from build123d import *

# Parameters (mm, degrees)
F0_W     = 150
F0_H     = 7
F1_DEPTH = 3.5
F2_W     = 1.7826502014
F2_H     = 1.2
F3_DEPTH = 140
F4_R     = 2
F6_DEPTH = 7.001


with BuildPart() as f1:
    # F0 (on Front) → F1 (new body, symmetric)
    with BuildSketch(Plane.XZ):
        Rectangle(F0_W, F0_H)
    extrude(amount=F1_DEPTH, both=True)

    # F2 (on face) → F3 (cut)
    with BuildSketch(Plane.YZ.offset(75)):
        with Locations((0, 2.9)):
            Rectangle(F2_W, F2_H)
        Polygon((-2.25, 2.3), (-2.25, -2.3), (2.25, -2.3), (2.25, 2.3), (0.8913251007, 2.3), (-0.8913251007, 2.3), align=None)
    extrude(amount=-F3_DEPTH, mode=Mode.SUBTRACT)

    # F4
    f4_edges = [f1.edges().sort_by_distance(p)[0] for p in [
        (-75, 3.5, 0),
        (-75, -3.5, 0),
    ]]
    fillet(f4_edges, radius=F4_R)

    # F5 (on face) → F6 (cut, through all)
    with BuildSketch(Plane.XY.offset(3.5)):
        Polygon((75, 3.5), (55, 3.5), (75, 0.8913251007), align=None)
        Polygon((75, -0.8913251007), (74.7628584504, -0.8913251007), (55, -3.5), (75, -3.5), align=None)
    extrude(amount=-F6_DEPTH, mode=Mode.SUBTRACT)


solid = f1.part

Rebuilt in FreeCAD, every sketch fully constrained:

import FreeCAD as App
import Part
import Sketcher

V = App.Vector


def edges_at(feature, points):
    """Names of the edges that pass closest to the given points."""
    edges = feature.Shape.Edges
    near = lambda p: min(range(len(edges)), key=lambda i: edges[i].distToShape(Part.Vertex(*p))[0])
    return sorted({f"Edge{near(p) + 1}" for p in points})


def add_polygon(sketch, points):
    """Adds a closed chain of lines whose ends are joined by coincident constraints."""
    first, n = sketch.GeometryCount, len(points)
    for a, b in zip(points, points[1:] + points[:1]):
        sketch.addGeometry(Part.LineSegment(App.Vector(*a, 0), App.Vector(*b, 0)), False)
    for i in range(n):
        sketch.addConstraint(Sketcher.Constraint("Coincident", first + i, 2, first + (i + 1) % n, 1))

doc = App.newDocument("Part")
body = doc.addObject("PartDesign::Body", "Body")

sketch1 = body.newObject("Sketcher::SketchObject", "Sketch")
sketch1.AttachmentSupport = (doc.getObject("XZ_Plane"), [""])
sketch1.MapMode = "FlatFace"
add_polygon(sketch1, [(-75, 3.5), (-75, -3.5), (75, -3.5), (75, 3.5)])
sketch1.addConstraint(Sketcher.Constraint("Vertical", 0))
sketch1.addConstraint(Sketcher.Constraint("Horizontal", 1))
sketch1.addConstraint(Sketcher.Constraint("Vertical", 2))
sketch1.addConstraint(Sketcher.Constraint("Horizontal", 3))
sketch1.addConstraint(Sketcher.Constraint("Symmetric", 0, 2, 2, 2, -1, 1))
sketch1.addConstraint(Sketcher.Constraint("DistanceX", 1, 1, 1, 2, 150.0))
sketch1.addConstraint(Sketcher.Constraint("DistanceY", 0, 2, 0, 1, 7.0))
pad1 = body.newObject("PartDesign::Pad", "Pad")
pad1.Profile = sketch1
pad1.Length = 7
pad1.Midplane = True

sketch2 = body.newObject("Sketcher::SketchObject", "Sketch001")
sketch2.AttachmentSupport = (doc.getObject("YZ_Plane"), [""])
sketch2.MapMode = "FlatFace"
sketch2.AttachmentOffset = App.Placement(V(0, 0, 75), App.Rotation())
add_polygon(sketch2, [(-0.891325, 3.5), (-0.891325, 2.3), (-2.25, 2.3), (-2.25, -2.3), (2.25, -2.3), (2.25, 2.3), (0.891325, 2.3), (0.891325, 3.5)])
sketch2.addConstraint(Sketcher.Constraint("Vertical", 0))
sketch2.addConstraint(Sketcher.Constraint("Horizontal", 1))
sketch2.addConstraint(Sketcher.Constraint("Vertical", 2))
sketch2.addConstraint(Sketcher.Constraint("Horizontal", 3))
sketch2.addConstraint(Sketcher.Constraint("Vertical", 4))
sketch2.addConstraint(Sketcher.Constraint("Horizontal", 5))
sketch2.addConstraint(Sketcher.Constraint("Vertical", 6))
sketch2.addConstraint(Sketcher.Constraint("Horizontal", 7))
sketch2.addConstraint(Sketcher.Constraint("Symmetric", 1, 2, 3, 2, -1, 1))
sketch2.addConstraint(Sketcher.Constraint("Symmetric", 0, 2, 5, 2, -2))
sketch2.addConstraint(Sketcher.Constraint("DistanceX", 3, 1, 3, 2, 4.5))
sketch2.addConstraint(Sketcher.Constraint("DistanceY", 0, 2, 0, 1, 1.2))
sketch2.addConstraint(Sketcher.Constraint("DistanceY", 2, 2, 2, 1, 4.6))
sketch2.addConstraint(Sketcher.Constraint("DistanceX", 7, 2, 7, 1, 1.78265))
pocket1 = body.newObject("PartDesign::Pocket", "Pocket")
pocket1.Profile = sketch2
pocket1.Length = 140
doc.recompute()

fillet = body.newObject("PartDesign::Fillet", "Fillet")
fillet.Base = (pocket1, edges_at(pocket1, [(-75, 3.5, 0), (-75, -3.5, 0)]))
fillet.Radius = 2

sketch3 = body.newObject("Sketcher::SketchObject", "Sketch002")
sketch3.AttachmentSupport = (doc.getObject("XY_Plane"), [""])
sketch3.MapMode = "FlatFace"
sketch3.AttachmentOffset = App.Placement(V(0, 0, 3.5), App.Rotation())
add_polygon(sketch3, [(75, 3.5), (55, 3.5), (75, 0.891325)])
add_polygon(sketch3, [(75, -0.891325), (74.762858, -0.891325), (55, -3.5), (75, -3.5)])
sketch3.addConstraint(Sketcher.Constraint("Horizontal", 0))
sketch3.addConstraint(Sketcher.Constraint("Vertical", 2))
sketch3.addConstraint(Sketcher.Constraint("Horizontal", 3))
sketch3.addConstraint(Sketcher.Constraint("Horizontal", 5))
sketch3.addConstraint(Sketcher.Constraint("Vertical", 6))
sketch3.addConstraint(Sketcher.Constraint("Symmetric", 0, 2, 4, 2, -1))
sketch3.addConstraint(Sketcher.Constraint("Symmetric", 1, 2, 6, 2, -1))
sketch3.addConstraint(Sketcher.Constraint("DistanceX", 0, 2, 0, 1, 20.0))
sketch3.addConstraint(Sketcher.Constraint("DistanceX", -1, 1, 0, 2, 55.0))
sketch3.addConstraint(Sketcher.Constraint("DistanceY", 4, 2, 0, 2, 7.0))
sketch3.addConstraint(Sketcher.Constraint("DistanceX", 3, 2, 3, 1, 0.237142))
sketch3.addConstraint(Sketcher.Constraint("DistanceY", 2, 1, 2, 2, 2.608675))
pocket2 = body.newObject("PartDesign::Pocket", "Pocket001")
pocket2.Profile = sketch3
pocket2.Type = "ThroughAll"

doc.recompute()
